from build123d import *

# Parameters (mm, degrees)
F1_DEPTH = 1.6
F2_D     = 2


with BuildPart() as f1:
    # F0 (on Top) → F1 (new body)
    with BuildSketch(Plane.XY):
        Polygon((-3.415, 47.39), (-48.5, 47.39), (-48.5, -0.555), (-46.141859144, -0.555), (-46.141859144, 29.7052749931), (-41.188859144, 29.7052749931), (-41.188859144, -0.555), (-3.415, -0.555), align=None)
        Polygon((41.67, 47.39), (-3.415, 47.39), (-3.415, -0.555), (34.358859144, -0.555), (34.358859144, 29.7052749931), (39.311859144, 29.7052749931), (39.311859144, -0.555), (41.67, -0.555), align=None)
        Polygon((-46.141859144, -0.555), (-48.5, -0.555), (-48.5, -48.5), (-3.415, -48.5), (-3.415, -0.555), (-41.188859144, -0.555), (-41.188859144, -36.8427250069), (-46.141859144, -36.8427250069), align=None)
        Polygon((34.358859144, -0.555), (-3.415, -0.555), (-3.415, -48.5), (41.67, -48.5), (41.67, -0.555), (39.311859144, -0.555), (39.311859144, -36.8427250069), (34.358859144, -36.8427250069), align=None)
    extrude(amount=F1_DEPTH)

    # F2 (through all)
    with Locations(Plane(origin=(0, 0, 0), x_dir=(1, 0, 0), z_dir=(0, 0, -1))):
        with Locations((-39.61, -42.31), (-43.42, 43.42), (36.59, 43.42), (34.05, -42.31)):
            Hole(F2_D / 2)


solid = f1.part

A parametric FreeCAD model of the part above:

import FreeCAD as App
import Part
import Sketcher
Q = App.Units.Quantity

doc = App.newDocument("Part")
body = doc.addObject("PartDesign::Body", "Body")

sketch1 = doc.addObject("Sketcher::SketchObject", "Sketch")
body.addObject(sketch1)
sketch1.AttachmentSupport = (doc.XY_Plane, [""])
sketch1.MapMode = "FlatFace"
sketch1.addGeometry([
    Part.LineSegment(App.Vector(-48.5, 47.4, 0), App.Vector(-48.5, -48.5, 0)),
    Part.LineSegment(App.Vector(-48.5, -48.5, 0), App.Vector(41.7, -48.5, 0)),
    Part.LineSegment(App.Vector(41.7, -48.5, 0), App.Vector(41.7, 47.4, 0)),
    Part.LineSegment(App.Vector(41.7, 47.4, 0), App.Vector(-48.5, 47.4, 0)),
    Part.LineSegment(App.Vector(34.4, 29.7, 0), App.Vector(39.3, 29.7, 0)),
    Part.LineSegment(App.Vector(39.3, 29.7, 0), App.Vector(39.3, -36.8, 0)),
    Part.LineSegment(App.Vector(39.3, -36.8, 0), App.Vector(34.4, -36.8, 0)),
    Part.LineSegment(App.Vector(34.4, -36.8, 0), App.Vector(34.4, 29.7, 0)),
    Part.LineSegment(App.Vector(-46.1, 29.7, 0), App.Vector(-41.2, 29.7, 0)),
    Part.LineSegment(App.Vector(-41.2, 29.7, 0), App.Vector(-41.2, -36.8, 0)),
    Part.LineSegment(App.Vector(-41.2, -36.8, 0), App.Vector(-46.1, -36.8, 0)),
    Part.LineSegment(App.Vector(-46.1, -36.8, 0), App.Vector(-46.1, 29.7, 0)),
], False)
sketch1.addConstraint([
    Sketcher.Constraint("Coincident", 0, 2, 1, 1),
    Sketcher.Constraint("Coincident", 1, 2, 2, 1),
    Sketcher.Constraint("Coincident", 2, 2, 3, 1),
    Sketcher.Constraint("Coincident", 3, 2, 0, 1),
    Sketcher.Constraint("Coincident", 4, 2, 5, 1),
    Sketcher.Constraint("Coincident", 5, 2, 6, 1),
    Sketcher.Constraint("Coincident", 6, 2, 7, 1),
    Sketcher.Constraint("Coincident", 7, 2, 4, 1),
    Sketcher.Constraint("Coincident", 8, 2, 9, 1),
    Sketcher.Constraint("Coincident", 9, 2, 10, 1),
    Sketcher.Constraint("Coincident", 10, 2, 11, 1),
    Sketcher.Constraint("Coincident", 11, 2, 8, 1),
    Sketcher.Constraint("Vertical", 0),
    Sketcher.Constraint("Horizontal", 1),
    Sketcher.Constraint("Vertical", 2),
    Sketcher.Constraint("Horizontal", 3),
    Sketcher.Constraint("Horizontal", 4),
    Sketcher.Constraint("Vertical", 5),
    Sketcher.Constraint("Horizontal", 6),
    Sketcher.Constraint("Vertical", 7),
    Sketcher.Constraint("Horizontal", 8),
    Sketcher.Constraint("Vertical", 9),
    Sketcher.Constraint("Horizontal", 10),
    Sketcher.Constraint("Vertical", 11),
    Sketcher.Constraint("Horizontal", 7, 2, 8, 2),
    Sketcher.Constraint("Horizontal", 6, 2, 9, 2),
    Sketcher.Constraint("Equal", 6, 8),
    Sketcher.Constraint("DistanceX", 1, 1, 1, 2, Q("3.55 in")),
    Sketcher.Constraint("DistanceY", 5, 2, 5, 1, Q("2.62 in")),
    Sketcher.Constraint("DistanceX", 4, 1, 4, 2, Q("0.195 in")),
    Sketcher.Constraint("DistanceY", 0, 2, 0, 1, 95.89),
    Sketcher.Constraint("DistanceX", 0, 2, -1, 1, 48.5),
    Sketcher.Constraint("DistanceY", 0, 2, -1, 1, 48.5),
    Sketcher.Constraint("DistanceX", -1, 1, 4, 2, 39.311859),
    Sketcher.Constraint("DistanceX", 8, 2, -1, 1, 41.188859),
    Sketcher.Constraint("DistanceY", -1, 1, 4, 2, 29.705275),
])
pad1 = doc.addObject("PartDesign::Pad", "Pad")
body.addObject(pad1)
pad1.Profile = sketch1
pad1.Length = 1.6

sketch2 = doc.addObject("Sketcher::SketchObject", "Sketch001")
body.addObject(sketch2)
sketch2.AttachmentSupport = (doc.XY_Plane, [""])
sketch2.MapMode = "FlatFace"
sketch2.addGeometry([
    Part.Circle(App.Vector(-39.6, 42.3, 0), App.Vector(0, 0, 1), 1),
    Part.Circle(App.Vector(-43.4, -43.4, 0), App.Vector(0, 0, 1), 1),
    Part.Circle(App.Vector(36.6, -43.4, 0), App.Vector(0, 0, 1), 1),
    Part.Circle(App.Vector(34, 42.3, 0), App.Vector(0, 0, 1), 1),
], False)
sketch2.addConstraint([
    Sketcher.Constraint("Equal", 0, 1),
    Sketcher.Constraint("Equal", 1, 2),
    Sketcher.Constraint("Equal", 2, 3),
    Sketcher.Constraint("Horizontal", 1, 3, 2, 3),
    Sketcher.Constraint("Horizontal", 0, 3, 3, 3),
    Sketcher.Constraint("DistanceX", 0, 3, 2, 3, Q("3 in")),
    Sketcher.Constraint("DistanceX", 0, 3, 3, 3, Q("2.9 in")),
    Sketcher.Constraint("Diameter", 0, 2.0),
    Sketcher.Constraint("DistanceX", 1, 3, 0, 3, Q("0.15 in")),
    Sketcher.Constraint("DistanceX", 0, 3, -1, 1, 39.61),
    Sketcher.Constraint("DistanceY", -1, 1, 0, 3, 42.31),
    Sketcher.Constraint("DistanceY", 1, 3, -1, 1, 43.42),
])
doc.recompute()
hole = doc.addObject("PartDesign::Hole", "Hole")
body.addObject(hole)
hole.Profile = sketch2
hole.ThreadType = "None"
hole.Diameter = 2
hole.DepthType = "ThroughAll"
hole.Reversed = True

doc.recompute()
